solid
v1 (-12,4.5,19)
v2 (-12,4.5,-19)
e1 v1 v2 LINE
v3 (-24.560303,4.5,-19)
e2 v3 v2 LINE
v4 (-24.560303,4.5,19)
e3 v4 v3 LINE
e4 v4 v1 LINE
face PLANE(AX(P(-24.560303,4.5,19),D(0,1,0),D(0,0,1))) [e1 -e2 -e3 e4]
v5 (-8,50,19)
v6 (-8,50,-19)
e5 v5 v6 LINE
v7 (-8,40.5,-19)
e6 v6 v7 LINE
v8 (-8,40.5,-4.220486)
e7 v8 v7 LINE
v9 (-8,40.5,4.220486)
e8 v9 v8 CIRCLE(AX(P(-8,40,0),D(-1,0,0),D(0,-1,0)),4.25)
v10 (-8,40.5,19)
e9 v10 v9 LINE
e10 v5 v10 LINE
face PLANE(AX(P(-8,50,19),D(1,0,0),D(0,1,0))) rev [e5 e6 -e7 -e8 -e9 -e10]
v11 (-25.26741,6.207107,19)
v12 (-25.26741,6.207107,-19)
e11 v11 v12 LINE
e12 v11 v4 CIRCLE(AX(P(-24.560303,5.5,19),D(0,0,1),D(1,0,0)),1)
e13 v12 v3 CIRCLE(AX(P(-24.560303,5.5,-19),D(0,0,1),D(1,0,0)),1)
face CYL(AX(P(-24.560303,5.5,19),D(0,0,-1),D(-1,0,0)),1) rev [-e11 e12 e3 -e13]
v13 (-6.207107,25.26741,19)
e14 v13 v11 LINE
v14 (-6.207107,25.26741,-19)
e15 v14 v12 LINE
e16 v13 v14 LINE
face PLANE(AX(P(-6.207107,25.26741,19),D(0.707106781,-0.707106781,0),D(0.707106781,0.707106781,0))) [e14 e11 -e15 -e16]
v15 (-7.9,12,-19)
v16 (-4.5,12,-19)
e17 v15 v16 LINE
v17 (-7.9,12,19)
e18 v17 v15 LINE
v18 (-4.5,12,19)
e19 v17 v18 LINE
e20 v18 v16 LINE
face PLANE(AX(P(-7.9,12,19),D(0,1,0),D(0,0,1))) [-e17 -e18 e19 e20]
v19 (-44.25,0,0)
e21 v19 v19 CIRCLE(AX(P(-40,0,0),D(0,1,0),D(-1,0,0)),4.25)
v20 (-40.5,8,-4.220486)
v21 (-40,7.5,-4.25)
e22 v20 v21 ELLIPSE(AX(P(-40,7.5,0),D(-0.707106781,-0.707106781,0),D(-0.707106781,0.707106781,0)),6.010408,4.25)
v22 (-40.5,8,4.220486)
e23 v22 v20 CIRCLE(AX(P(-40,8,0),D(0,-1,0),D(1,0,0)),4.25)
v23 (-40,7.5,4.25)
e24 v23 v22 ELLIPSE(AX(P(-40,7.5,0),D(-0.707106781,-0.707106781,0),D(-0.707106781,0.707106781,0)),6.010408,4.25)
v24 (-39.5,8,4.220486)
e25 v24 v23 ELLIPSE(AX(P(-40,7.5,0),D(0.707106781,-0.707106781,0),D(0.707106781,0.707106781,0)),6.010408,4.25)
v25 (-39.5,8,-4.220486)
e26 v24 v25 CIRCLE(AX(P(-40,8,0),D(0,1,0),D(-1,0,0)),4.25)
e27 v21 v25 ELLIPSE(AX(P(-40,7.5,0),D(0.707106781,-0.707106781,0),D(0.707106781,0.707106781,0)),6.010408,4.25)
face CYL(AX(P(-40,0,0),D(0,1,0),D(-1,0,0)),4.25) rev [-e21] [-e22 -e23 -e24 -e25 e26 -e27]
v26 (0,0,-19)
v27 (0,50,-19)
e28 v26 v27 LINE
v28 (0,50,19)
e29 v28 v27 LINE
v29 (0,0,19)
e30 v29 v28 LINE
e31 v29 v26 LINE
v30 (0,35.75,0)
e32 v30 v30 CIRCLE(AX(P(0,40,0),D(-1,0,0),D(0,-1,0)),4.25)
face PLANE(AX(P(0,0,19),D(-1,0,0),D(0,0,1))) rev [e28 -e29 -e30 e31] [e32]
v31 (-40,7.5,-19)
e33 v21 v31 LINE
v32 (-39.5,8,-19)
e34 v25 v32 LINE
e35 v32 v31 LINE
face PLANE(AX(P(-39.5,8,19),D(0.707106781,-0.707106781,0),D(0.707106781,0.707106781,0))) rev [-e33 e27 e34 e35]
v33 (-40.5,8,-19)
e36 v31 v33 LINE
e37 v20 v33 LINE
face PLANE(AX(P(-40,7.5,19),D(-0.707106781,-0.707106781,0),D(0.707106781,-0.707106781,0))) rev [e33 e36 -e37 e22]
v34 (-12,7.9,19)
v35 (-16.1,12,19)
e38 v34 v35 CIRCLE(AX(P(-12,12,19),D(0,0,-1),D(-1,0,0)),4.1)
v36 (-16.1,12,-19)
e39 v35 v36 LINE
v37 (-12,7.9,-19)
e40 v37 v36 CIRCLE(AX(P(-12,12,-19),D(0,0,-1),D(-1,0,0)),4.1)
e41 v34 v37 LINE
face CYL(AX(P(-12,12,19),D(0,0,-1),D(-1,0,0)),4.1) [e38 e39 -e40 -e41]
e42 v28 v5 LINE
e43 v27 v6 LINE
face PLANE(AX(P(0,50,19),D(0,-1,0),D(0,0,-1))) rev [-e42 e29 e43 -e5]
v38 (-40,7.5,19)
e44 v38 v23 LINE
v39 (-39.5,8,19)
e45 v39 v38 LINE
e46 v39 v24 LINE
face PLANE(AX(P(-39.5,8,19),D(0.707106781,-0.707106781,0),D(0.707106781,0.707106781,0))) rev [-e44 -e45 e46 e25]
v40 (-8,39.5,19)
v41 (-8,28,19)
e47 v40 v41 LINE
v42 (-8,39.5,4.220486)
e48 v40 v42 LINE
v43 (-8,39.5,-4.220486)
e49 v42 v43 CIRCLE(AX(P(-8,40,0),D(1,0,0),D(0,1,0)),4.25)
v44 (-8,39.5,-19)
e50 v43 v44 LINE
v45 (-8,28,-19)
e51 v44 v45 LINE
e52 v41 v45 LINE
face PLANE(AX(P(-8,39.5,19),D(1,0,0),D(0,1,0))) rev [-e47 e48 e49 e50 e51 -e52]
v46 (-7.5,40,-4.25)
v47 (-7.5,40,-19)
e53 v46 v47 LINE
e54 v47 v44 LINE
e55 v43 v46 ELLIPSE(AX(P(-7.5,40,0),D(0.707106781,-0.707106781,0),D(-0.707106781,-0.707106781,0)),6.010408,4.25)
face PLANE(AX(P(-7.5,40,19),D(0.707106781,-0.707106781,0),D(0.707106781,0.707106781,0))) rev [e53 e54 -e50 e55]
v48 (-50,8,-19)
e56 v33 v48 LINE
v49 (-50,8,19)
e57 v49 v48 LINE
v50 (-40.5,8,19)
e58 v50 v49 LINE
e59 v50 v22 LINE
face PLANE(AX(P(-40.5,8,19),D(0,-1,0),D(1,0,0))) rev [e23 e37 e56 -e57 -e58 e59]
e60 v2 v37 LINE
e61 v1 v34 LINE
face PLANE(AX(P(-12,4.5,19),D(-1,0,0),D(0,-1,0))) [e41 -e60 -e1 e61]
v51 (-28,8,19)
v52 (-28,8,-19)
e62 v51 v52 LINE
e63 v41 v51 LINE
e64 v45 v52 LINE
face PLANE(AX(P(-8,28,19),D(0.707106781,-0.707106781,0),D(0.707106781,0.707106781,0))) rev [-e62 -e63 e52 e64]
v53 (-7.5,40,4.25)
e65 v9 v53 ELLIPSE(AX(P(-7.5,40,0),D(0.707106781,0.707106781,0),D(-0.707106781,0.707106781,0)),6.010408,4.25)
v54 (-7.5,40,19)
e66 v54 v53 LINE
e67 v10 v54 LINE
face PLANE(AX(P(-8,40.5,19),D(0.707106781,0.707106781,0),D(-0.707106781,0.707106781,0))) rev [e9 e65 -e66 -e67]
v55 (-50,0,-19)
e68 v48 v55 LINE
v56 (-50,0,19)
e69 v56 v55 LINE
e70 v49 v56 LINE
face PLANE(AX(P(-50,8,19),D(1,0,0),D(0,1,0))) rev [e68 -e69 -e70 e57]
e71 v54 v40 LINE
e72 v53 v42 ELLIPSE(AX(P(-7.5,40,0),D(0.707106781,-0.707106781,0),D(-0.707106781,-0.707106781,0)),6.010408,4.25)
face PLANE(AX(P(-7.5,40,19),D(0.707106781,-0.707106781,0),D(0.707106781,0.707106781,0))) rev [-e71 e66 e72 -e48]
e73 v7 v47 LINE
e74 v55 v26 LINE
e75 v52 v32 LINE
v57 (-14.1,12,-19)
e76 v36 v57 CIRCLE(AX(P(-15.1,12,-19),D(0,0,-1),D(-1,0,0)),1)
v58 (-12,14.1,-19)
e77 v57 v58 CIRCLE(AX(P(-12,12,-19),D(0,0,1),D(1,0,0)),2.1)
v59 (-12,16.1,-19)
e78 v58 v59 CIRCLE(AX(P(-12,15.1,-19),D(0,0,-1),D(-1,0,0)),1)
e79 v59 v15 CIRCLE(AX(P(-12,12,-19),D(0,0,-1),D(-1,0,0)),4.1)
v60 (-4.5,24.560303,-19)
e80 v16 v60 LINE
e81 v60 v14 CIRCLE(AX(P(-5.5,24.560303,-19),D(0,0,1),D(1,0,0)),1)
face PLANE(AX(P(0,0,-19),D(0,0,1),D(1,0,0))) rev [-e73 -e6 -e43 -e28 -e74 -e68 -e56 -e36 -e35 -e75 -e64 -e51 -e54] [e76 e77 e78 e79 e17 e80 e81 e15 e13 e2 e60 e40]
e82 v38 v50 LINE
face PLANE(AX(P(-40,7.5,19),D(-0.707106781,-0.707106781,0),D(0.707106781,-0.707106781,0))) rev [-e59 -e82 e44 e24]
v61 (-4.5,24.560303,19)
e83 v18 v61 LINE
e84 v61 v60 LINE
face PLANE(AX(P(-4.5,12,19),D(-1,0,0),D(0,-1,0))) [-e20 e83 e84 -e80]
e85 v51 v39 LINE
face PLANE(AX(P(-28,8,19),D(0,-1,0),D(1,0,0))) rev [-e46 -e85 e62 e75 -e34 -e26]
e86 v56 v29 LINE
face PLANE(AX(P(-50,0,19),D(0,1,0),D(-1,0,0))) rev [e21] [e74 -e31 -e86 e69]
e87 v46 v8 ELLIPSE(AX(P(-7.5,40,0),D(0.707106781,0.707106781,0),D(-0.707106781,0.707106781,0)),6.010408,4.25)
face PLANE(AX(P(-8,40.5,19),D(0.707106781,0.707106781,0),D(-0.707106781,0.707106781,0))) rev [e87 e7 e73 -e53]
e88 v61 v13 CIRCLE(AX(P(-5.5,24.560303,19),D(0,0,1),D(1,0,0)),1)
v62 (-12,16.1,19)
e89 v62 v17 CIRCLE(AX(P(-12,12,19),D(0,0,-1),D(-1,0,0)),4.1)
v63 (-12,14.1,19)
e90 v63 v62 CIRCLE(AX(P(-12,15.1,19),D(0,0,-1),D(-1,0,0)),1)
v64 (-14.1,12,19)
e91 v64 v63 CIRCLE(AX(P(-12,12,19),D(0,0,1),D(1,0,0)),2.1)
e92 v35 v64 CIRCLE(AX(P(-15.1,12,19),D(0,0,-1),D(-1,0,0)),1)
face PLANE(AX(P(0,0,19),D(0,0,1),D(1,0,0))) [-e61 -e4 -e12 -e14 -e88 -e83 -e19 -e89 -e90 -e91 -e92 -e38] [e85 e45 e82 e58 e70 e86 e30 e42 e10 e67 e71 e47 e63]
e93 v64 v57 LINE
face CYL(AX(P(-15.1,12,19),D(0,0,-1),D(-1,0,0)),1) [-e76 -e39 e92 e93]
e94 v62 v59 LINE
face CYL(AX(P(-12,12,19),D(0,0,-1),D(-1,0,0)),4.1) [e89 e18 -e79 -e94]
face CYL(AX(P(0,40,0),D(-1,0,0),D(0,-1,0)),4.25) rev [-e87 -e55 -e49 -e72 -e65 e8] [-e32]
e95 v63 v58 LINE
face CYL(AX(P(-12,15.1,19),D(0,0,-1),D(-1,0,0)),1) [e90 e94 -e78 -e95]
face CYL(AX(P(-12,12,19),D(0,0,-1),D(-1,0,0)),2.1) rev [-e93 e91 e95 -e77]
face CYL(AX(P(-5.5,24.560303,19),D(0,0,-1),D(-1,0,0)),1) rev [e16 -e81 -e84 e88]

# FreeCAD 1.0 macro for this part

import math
import FreeCAD as App
import Part
import Sketcher
Q = App.Units.Quantity

doc = App.newDocument("Part")
body = doc.addObject("PartDesign::Body", "Body")

sketch1 = body.newObject("Sketcher::SketchObject", "Sketch")
sketch1.AttachmentSupport = (doc.getObject("XY_Plane"), [""])
sketch1.MapMode = "FlatFace"
sketch1.addGeometry([
    Part.LineSegment(App.Vector(-50, 0, 0), App.Vector(0, 0, 0)),
    Part.LineSegment(App.Vector(0, 0, 0), App.Vector(0, 50, 0)),
    Part.LineSegment(App.Vector(0, 50, 0), App.Vector(-8, 50, 0)),
    Part.LineSegment(App.Vector(-8, 50, 0), App.Vector(-8, 40.5, 0)),
    Part.LineSegment(App.Vector(-8, 40.5, 0), App.Vector(-7.5, 40, 0)),
    Part.LineSegment(App.Vector(-7.5, 40, 0), App.Vector(-8, 39.5, 0)),
    Part.LineSegment(App.Vector(-8, 39.5, 0), App.Vector(-8, 28, 0)),
    Part.LineSegment(App.Vector(-8, 28, 0), App.Vector(-28, 8, 0)),
    Part.LineSegment(App.Vector(-28, 8, 0), App.Vector(-39.5, 8, 0)),
    Part.LineSegment(App.Vector(-39.5, 8, 0), App.Vector(-40, 7.5, 0)),
    Part.LineSegment(App.Vector(-40, 7.5, 0), App.Vector(-40.5, 8, 0)),
    Part.LineSegment(App.Vector(-40.5, 8, 0), App.Vector(-50, 8, 0)),
    Part.LineSegment(App.Vector(-50, 8, 0), App.Vector(-50, 0, 0)),
    Part.LineSegment(App.Vector(-4.5, 24.6, 0), App.Vector(-4.5, 12, 0)),
    Part.LineSegment(App.Vector(-4.5, 12, 0), App.Vector(-7.9, 12, 0)),
    Part.ArcOfCircle(Part.Circle(App.Vector(-12, 12, 0), App.Vector(0, 0, 1), 4.1), math.radians(0), math.radians(90)),
    Part.ArcOfCircle(Part.Circle(App.Vector(-12, 15.1, 0), App.Vector(0, 0, 1), 1), math.radians(90), math.radians(270)),
    Part.ArcOfCircle(Part.Circle(App.Vector(-12, 12, 0), App.Vector(0, 0, 1), 2.1), math.radians(180), math.radians(450)),
    Part.ArcOfCircle(Part.Circle(App.Vector(-15.1, 12, 0), App.Vector(0, 0, 1), 1), math.radians(0), math.radians(180)),
    Part.ArcOfCircle(Part.Circle(App.Vector(-12, 12, 0), App.Vector(0, 0, 1), 4.1), math.radians(180), math.radians(270)),
    Part.LineSegment(App.Vector(-12, 7.9, 0), App.Vector(-12, 4.5, 0)),
    Part.LineSegment(App.Vector(-12, 4.5, 0), App.Vector(-24.6, 4.5, 0)),
    Part.ArcOfCircle(Part.Circle(App.Vector(-24.6, 5.5, 0), App.Vector(0, 0, 1), 1), math.radians(135), math.radians(270)),
    Part.LineSegment(App.Vector(-25.3, 6.2, 0), App.Vector(-6.2, 25.3, 0)),
    Part.ArcOfCircle(Part.Circle(App.Vector(-5.5, 24.6, 0), App.Vector(0, 0, 1), 1), math.radians(0), math.radians(135)),
], False)
sketch1.addConstraint([
    Sketcher.Constraint("Coincident", 0, 2, 1, 1),
    Sketcher.Constraint("Coincident", 1, 2, 2, 1),
    Sketcher.Constraint("Coincident", 2, 2, 3, 1),
    Sketcher.Constraint("Coincident", 3, 2, 4, 1),
    Sketcher.Constraint("Coincident", 4, 2, 5, 1),
    Sketcher.Constraint("Coincident", 5, 2, 6, 1),
    Sketcher.Constraint("Coincident", 6, 2, 7, 1),
    Sketcher.Constraint("Coincident", 7, 2, 8, 1),
    Sketcher.Constraint("Coincident", 8, 2, 9, 1),
    Sketcher.Constraint("Coincident", 9, 2, 10, 1),
    Sketcher.Constraint("Coincident", 10, 2, 11, 1),
    Sketcher.Constraint("Coincident", 11, 2, 12, 1),
    Sketcher.Constraint("Coincident", 12, 2, 0, 1),
    Sketcher.Constraint("Coincident", 13, 2, 14, 1),
    Sketcher.Constraint("Coincident", 14, 2, 15, 1),
    Sketcher.Constraint("Tangent", 15, 2, 16, 1),
    Sketcher.Constraint("Tangent", 16, 2, 17, 2),
    Sketcher.Constraint("Tangent", 17, 1, 18, 1),
    Sketcher.Constraint("Tangent", 18, 2, 19, 1),
    Sketcher.Constraint("Coincident", 19, 2, 20, 1),
    Sketcher.Constraint("Coincident", 20, 2, 21, 1),
    Sketcher.Constraint("Tangent", 21, 2, 22, 2),
    Sketcher.Constraint("Tangent", 22, 1, 23, 1),
    Sketcher.Constraint("Tangent", 23, 2, 24, 2),
    Sketcher.Constraint("Tangent", 24, 1, 13, 1),
    Sketcher.Constraint("Horizontal", 0),
    Sketcher.Constraint("Vertical", 1),
    Sketcher.Constraint("Horizontal", 2),
    Sketcher.Constraint("Vertical", 3),
    Sketcher.Constraint("Vertical", 6),
    Sketcher.Constraint("Horizontal", 8),
    Sketcher.Constraint("Horizontal", 11),
    Sketcher.Constraint("Vertical", 12),
    Sketcher.Constraint("Vertical", 13),
    Sketcher.Constraint("Horizontal", 14),
    Sketcher.Constraint("Vertical", 20),
    Sketcher.Constraint("Horizontal", 21),
    Sketcher.Constraint("Coincident", 0, 2, -1, 1),
    Sketcher.Constraint("Coincident", 17, 3, 15, 3),
    Sketcher.Constraint("Coincident", 19, 3, 15, 3),
    Sketcher.Constraint("Equal", 16, 18),
    Sketcher.Constraint("Equal", 18, 22),
    Sketcher.Constraint("Equal", 22, 24),
    Sketcher.Constraint("Perpendicular", 4, 5),
    Sketcher.Constraint("Parallel", 5, 7),
    Sketcher.Constraint("Parallel", 7, 9),
    Sketcher.Constraint("Perpendicular", 9, 10),
    Sketcher.Constraint("Perpendicular", 10, 23),
    Sketcher.Constraint("Horizontal", 17, 3, 18, 3),
    Sketcher.Constraint("Horizontal", 8, 2, 10, 2),
    Sketcher.Constraint("Horizontal", 19, 3, 13, 2),
    Sketcher.Constraint("Vertical", 15, 3, 16, 3),
    Sketcher.Constraint("Vertical", 3, 2, 5, 2),
    Sketcher.Constraint("Vertical", 16, 2, 19, 2),
    Sketcher.Constraint("Equal", 0, 1),
    Sketcher.Constraint("Equal", 11, 3),
    Sketcher.Constraint("Equal", 8, 6),
    Sketcher.Constraint("Equal", 2, 12),
    Sketcher.Constraint("Equal", 21, 13),
    Sketcher.Constraint("Equal", 14, 20),
    Sketcher.Constraint("Radius", 16, Q("1 mm")),
    Sketcher.Constraint("Radius", 15, Q("4.1 mm")),
    Sketcher.Constraint("DistanceX", 0, 1, 0, 2, Q("50 mm")),
    Sketcher.Constraint("DistanceX", 2, 2, 2, 1, Q("8 mm")),
    Sketcher.Constraint("DistanceX", 8, 2, 8, 1, Q("11.5 mm")),
    Sketcher.Constraint("DistanceX", 11, 2, 11, 1, Q("9.5 mm")),
    Sketcher.Constraint("DistanceX", 14, 2, 14, 1, Q("3.4 mm")),
    Sketcher.Constraint("DistanceX", 15, 3, -1, 1, Q("12 mm")),
    Sketcher.Constraint("DistanceY", -1, 1, 15, 3, Q("12 mm")),
    Sketcher.Constraint("DistanceY", -1, 1, 4, 2, Q("40 mm")),
    Sketcher.Constraint("Distance", 23, Q("26.955339 mm")),
])
pad1 = body.newObject("PartDesign::Pad", "Pad")
pad1.Profile = sketch1
pad1.Length = 38
pad1.Midplane = True

sketch2 = body.newObject("Sketcher::SketchObject", "Sketch001")
sketch2.AttachmentSupport = (doc.getObject("YZ_Plane"), [""])
sketch2.MapMode = "FlatFace"
sketch2.AttachmentOffset = App.Placement(App.Vector(0, 0, -8), App.Rotation())
sketch2.addGeometry(Part.Circle(App.Vector(40, 0, 0), App.Vector(0, 0, 1), 4.2), False)
sketch2.addConstraint([
    Sketcher.Constraint("PointOnObject", 0, 3, -1),
    Sketcher.Constraint("Diameter", 0, Q("8.5 mm")),
    Sketcher.Constraint("DistanceX", -1, 1, 0, 3, Q("40 mm")),
])
pocket1 = body.newObject("PartDesign::Pocket", "Pocket")
pocket1.Profile = sketch2
pocket1.Type = "ThroughAll"
pocket1.Reversed = True

sketch3 = body.newObject("Sketcher::SketchObject", "Sketch002")
sketch3.AttachmentSupport = (doc.getObject("XZ_Plane"), [""])
sketch3.MapMode = "FlatFace"
sketch3.AttachmentOffset = App.Placement(App.Vector(0, 0, -8), App.Rotation())
sketch3.addGeometry(Part.Circle(App.Vector(-40, 0, 0), App.Vector(0, 0, 1), 4.2), False)
sketch3.addConstraint([
    Sketcher.Constraint("PointOnObject", 0, 3, -1),
    Sketcher.Constraint("Diameter", 0, Q("8.5 mm")),
    Sketcher.Constraint("DistanceX", 0, 3, -1, 1, Q("40 mm")),
])
pocket2 = body.newObject("PartDesign::Pocket", "Pocket001")
pocket2.Profile = sketch3
pocket2.Type = "ThroughAll"
pocket2.Reversed = True

doc.recompute()
